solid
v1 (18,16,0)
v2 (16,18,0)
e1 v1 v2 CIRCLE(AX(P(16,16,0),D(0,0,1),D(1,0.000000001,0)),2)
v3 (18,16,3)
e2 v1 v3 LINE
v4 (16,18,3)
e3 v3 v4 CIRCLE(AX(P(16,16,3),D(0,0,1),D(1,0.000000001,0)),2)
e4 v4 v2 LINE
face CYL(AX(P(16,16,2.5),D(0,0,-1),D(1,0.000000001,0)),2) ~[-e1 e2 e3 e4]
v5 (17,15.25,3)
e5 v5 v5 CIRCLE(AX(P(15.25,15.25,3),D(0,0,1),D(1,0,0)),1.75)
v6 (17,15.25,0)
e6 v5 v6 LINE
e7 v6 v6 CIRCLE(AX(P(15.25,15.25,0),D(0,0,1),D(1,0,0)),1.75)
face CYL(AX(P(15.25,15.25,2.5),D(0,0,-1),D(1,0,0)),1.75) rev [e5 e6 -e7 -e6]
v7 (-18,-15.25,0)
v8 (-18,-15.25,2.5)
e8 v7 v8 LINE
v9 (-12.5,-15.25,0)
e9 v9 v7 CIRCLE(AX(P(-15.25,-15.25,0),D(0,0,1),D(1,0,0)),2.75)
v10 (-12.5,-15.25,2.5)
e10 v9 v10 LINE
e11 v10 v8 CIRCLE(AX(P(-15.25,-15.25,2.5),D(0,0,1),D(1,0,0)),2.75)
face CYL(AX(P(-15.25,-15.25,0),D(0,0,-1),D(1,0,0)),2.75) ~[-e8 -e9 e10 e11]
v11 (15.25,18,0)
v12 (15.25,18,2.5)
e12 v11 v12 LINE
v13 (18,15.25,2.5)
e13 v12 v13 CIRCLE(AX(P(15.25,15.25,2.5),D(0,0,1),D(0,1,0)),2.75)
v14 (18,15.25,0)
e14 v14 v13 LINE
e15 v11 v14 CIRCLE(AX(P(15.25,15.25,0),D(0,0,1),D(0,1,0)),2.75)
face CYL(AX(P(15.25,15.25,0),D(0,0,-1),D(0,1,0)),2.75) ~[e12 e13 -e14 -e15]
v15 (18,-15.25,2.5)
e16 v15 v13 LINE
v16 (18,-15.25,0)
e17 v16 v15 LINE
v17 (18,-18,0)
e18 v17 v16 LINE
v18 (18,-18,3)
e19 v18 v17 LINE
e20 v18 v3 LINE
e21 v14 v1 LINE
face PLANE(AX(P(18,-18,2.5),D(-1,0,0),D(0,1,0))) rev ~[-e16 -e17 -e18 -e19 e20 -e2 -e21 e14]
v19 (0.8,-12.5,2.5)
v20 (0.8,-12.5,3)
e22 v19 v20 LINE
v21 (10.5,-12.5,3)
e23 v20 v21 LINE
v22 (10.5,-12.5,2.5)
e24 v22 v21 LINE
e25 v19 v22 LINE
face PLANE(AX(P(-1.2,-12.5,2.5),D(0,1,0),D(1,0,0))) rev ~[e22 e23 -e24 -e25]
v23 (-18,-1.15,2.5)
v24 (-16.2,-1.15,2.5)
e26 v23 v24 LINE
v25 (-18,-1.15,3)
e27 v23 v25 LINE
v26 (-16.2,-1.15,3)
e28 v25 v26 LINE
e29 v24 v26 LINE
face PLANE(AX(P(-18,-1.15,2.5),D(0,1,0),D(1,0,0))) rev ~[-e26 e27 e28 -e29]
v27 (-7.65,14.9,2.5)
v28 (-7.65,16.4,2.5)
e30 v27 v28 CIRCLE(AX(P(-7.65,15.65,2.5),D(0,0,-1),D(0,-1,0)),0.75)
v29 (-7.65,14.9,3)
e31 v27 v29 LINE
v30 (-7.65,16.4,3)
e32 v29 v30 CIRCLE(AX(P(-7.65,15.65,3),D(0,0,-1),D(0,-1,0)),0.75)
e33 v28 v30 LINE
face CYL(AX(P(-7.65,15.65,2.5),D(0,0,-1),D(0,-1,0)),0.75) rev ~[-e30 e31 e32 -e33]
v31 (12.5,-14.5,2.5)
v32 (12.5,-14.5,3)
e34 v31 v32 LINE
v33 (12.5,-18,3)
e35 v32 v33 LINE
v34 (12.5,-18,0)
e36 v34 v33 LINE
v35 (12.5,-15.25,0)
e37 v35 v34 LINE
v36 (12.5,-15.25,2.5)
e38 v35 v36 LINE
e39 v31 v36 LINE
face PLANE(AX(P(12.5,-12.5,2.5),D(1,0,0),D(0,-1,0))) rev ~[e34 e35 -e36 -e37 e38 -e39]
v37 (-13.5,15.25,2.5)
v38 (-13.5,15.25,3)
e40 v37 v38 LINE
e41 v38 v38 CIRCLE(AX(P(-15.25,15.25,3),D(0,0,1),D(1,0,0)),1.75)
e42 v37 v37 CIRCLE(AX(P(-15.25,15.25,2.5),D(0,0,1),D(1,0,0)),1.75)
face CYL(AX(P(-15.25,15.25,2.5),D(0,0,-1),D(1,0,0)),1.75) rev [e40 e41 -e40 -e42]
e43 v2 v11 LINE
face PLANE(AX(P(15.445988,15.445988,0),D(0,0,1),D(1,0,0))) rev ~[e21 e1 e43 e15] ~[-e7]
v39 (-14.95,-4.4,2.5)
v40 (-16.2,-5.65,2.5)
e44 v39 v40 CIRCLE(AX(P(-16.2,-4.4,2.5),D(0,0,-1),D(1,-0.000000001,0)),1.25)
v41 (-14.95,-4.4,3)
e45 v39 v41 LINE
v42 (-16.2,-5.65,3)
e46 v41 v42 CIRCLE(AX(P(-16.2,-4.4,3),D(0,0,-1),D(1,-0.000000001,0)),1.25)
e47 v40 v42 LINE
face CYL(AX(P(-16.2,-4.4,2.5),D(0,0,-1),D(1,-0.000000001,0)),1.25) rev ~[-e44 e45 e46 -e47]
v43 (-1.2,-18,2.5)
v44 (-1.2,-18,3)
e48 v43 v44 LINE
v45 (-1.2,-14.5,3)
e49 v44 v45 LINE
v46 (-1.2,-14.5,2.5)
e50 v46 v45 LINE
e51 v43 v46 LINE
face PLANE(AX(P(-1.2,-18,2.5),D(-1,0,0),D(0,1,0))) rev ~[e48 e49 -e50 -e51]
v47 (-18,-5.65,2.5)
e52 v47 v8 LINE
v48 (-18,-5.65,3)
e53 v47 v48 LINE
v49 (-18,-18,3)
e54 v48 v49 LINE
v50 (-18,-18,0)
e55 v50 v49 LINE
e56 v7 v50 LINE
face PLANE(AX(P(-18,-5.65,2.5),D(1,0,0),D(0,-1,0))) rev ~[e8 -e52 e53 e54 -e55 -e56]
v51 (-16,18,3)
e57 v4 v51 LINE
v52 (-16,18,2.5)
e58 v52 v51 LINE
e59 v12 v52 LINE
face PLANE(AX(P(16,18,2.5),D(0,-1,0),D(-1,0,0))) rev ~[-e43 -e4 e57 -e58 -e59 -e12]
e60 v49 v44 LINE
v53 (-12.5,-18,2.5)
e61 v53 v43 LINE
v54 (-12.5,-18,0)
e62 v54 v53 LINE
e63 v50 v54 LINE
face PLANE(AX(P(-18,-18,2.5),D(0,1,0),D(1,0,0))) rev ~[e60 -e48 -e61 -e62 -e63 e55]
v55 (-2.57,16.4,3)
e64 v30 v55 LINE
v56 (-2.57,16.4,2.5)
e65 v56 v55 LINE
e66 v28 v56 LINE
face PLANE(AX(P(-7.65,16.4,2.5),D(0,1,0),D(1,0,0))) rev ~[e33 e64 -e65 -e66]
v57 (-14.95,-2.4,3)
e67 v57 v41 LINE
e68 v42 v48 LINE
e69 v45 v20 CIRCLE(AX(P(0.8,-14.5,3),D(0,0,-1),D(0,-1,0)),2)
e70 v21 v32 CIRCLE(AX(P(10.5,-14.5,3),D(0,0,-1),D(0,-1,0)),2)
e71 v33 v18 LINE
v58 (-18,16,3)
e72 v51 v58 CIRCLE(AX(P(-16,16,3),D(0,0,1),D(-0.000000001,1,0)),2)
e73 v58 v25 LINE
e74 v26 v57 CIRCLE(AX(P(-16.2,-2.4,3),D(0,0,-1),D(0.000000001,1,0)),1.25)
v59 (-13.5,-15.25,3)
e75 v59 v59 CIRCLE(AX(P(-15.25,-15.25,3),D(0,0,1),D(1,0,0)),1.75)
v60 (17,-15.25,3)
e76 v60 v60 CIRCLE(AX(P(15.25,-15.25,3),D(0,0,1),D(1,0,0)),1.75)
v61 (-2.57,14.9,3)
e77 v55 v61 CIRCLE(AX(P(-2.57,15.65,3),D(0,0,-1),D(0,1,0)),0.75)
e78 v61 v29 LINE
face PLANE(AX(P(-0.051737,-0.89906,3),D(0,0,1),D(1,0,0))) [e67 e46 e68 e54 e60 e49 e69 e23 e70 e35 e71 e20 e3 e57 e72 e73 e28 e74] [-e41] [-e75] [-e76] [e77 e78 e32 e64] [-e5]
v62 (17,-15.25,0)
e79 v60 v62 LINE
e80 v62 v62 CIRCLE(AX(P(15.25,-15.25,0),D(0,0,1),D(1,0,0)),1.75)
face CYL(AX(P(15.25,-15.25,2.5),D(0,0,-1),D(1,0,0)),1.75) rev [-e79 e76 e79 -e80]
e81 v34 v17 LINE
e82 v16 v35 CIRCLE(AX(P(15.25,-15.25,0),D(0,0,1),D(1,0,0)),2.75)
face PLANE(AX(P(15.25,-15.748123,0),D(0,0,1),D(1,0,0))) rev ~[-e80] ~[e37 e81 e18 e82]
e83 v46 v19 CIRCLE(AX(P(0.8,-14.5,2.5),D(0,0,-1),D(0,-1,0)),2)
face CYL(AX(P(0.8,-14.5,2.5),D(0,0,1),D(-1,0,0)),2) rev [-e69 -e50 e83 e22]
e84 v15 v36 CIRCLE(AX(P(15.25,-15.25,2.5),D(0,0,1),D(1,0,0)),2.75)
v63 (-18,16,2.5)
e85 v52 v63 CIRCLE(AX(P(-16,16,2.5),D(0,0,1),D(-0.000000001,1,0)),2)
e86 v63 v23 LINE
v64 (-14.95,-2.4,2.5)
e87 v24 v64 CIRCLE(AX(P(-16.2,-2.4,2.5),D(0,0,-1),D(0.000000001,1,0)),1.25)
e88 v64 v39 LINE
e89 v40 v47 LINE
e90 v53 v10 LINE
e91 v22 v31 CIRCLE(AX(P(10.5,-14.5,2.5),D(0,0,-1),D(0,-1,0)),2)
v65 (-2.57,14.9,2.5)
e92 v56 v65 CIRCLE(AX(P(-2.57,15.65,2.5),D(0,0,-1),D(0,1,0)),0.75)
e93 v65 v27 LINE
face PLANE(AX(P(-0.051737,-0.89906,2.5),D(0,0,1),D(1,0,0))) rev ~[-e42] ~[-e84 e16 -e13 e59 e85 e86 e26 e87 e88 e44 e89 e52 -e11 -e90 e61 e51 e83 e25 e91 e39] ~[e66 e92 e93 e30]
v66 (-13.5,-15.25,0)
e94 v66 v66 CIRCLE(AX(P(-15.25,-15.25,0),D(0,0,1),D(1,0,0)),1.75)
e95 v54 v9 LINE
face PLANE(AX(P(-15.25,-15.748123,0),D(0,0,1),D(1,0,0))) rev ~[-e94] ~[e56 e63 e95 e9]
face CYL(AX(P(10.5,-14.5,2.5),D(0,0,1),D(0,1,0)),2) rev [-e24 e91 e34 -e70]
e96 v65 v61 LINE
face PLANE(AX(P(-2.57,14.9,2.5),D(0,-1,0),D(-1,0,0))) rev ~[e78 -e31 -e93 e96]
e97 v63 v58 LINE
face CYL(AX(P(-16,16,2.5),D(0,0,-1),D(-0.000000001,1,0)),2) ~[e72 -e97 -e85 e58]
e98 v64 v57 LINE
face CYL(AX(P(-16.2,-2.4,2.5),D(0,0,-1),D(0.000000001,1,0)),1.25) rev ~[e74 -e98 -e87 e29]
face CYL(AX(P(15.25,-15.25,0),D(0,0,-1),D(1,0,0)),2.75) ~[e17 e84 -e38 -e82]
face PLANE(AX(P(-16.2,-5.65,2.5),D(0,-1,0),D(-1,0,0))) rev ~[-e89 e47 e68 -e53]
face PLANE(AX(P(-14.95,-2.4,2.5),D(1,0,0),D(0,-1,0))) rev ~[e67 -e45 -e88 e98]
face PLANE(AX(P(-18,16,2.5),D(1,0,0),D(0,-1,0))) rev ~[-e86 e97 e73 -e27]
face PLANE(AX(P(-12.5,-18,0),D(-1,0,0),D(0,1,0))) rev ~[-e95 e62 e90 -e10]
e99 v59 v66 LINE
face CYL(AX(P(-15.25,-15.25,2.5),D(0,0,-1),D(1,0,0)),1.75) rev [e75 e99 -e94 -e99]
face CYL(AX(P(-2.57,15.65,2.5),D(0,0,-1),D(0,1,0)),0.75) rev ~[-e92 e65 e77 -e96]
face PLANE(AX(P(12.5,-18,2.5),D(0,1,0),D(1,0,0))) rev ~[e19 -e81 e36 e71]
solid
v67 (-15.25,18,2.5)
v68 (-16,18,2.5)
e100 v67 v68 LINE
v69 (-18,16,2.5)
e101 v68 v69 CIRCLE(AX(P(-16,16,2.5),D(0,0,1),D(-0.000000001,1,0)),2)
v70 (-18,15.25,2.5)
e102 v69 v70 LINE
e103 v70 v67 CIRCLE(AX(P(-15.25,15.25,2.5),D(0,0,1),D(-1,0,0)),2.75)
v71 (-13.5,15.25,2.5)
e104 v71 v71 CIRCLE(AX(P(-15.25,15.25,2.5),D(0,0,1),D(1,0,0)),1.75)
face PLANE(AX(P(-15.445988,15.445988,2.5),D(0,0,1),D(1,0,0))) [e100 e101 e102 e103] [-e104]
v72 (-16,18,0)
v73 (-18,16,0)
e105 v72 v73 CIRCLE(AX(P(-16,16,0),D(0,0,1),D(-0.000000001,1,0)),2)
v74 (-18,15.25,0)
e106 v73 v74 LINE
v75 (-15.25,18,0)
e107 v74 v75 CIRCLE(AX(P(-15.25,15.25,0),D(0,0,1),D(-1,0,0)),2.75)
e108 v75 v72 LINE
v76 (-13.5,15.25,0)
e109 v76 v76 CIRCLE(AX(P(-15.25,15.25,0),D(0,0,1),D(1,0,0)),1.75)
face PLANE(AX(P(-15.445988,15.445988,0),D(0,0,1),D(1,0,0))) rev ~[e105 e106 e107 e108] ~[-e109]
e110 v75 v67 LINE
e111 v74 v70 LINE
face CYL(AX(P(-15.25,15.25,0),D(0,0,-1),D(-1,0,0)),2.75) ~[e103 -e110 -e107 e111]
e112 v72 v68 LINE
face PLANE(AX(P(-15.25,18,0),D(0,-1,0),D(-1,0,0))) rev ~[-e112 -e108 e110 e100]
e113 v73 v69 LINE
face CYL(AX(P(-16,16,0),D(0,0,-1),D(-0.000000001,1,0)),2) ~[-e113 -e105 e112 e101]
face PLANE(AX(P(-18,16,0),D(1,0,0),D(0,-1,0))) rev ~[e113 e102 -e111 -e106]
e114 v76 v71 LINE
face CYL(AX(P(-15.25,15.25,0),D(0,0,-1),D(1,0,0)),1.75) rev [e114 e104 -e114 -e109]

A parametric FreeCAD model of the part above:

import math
import FreeCAD as App
import Part
import Sketcher
from FreeCAD import Vector


def edges_at(feature, points):
    """Names of the edges that pass closest to the given points."""
    edges = feature.Shape.Edges
    near = lambda p: min(range(len(edges)), key=lambda i: edges[i].distToShape(Part.Vertex(*p))[0])
    return sorted({f"Edge{near(p) + 1}" for p in points})

doc = App.newDocument("Part")
params = doc.addObject("Spreadsheet::Sheet", "Params")
for row, (alias, value) in enumerate([
    ("sketch1_diameter", "3.5 mm"),
    ("sketch1_radius", "2.75 mm"),
    ("sketch1_height", "2.75 mm"),
    ("pad1_length", "2.5 mm"),
    ("sketch2_diameter", "3.5 mm"),
    ("sketch2_radius", "2.75 mm"),
    ("sketch2_height", "2.75 mm"),
    ("pad2_length", "2.5 mm"),
    ("sketch3_radius", "2 mm"),
    ("sketch3_diameter", "3.5 mm"),
    ("sketch3_radius2", "2.75 mm"),
    ("pad3_length", "2.5 mm"),
    ("sketch4_radius", "2 mm"),
    ("sketch4_diameter", "3.5 mm"),
    ("sketch4_radius2", "2.75 mm"),
    ("pad4_length", "2.5 mm"),
    ("sketch5_radius", "2 mm"),
    ("sketch5_diameter", "3.5 mm"),
    ("sketch5_width", "32 mm"),
    ("sketch5_height", "34 mm"),
    ("sketch5_height2", "2 mm"),
    ("pad5_length", "0.5 mm"),
    ("fillet_radius", "2 mm"),
], start=1):
    params.set(f"A{row}", alias)
    params.set(f"B{row}", "=" + value)
    params.setAlias(f"B{row}", alias)

body = doc.addObject("PartDesign::Body", "Body")

sketch1 = doc.addObject("Sketcher::SketchObject", "Sketch")
body.addObject(sketch1)
sketch1.AttachmentSupport = (doc.XY_Plane, [""])
sketch1.MapMode = "FlatFace"
sketch1.addGeometry([
    Part.LineSegment(Vector(18, -18, 0), Vector(18, -15.2, 0)),
    Part.ArcOfCircle(Part.Circle(Vector(15.2, -15.2, 0), Vector(0, 0, 1), 2.8), math.radians(0), math.radians(180)),
    Part.LineSegment(Vector(12.5, -15.2, 0), Vector(12.5, -18, 0)),
    Part.LineSegment(Vector(12.5, -18, 0), Vector(18, -18, 0)),
    Part.Circle(Vector(15.2, -15.2, 0), Vector(0, 0, 1), 1.8),
], False)
sketch1.addConstraint([
    Sketcher.Constraint("Tangent", 0, 2, 1, 1),
    Sketcher.Constraint("Tangent", 1, 2, 2, 1),
    Sketcher.Constraint("Coincident", 2, 2, 3, 1),
    Sketcher.Constraint("Coincident", 3, 2, 0, 1),
    Sketcher.Constraint("Vertical", 0),
    Sketcher.Constraint("Vertical", 2),
    Sketcher.Constraint("Horizontal", 3),
    Sketcher.Constraint("Coincident", 4, 3, 1, 3),
    Sketcher.Constraint("Diameter", 4, 3.5),
    Sketcher.Constraint("Radius", 1, 2.75),
    Sketcher.Constraint("DistanceX", -1, 1, 0, 2, 18.0),
    Sketcher.Constraint("DistanceY", 2, 2, -1, 1, 18.0),
    Sketcher.Constraint("DistanceY", 0, 1, 0, 2, 2.75),
])
sketch1.setExpression("Constraints[8]", "Params.sketch1_diameter")
sketch1.setExpression("Constraints[9]", "Params.sketch1_radius")
sketch1.setExpression("Constraints[12]", "Params.sketch1_height")
pad1 = doc.addObject("PartDesign::Pad", "Pad")
body.addObject(pad1)
pad1.Profile = sketch1
pad1.setExpression("Length", "Params.pad1_length")
body2 = doc.addObject("PartDesign::Body", "Body001")

sketch2 = doc.addObject("Sketcher::SketchObject", "Sketch001")
body2.addObject(sketch2)
sketch2.AttachmentSupport = (doc.getObject("XY_Plane001"), [""])
sketch2.MapMode = "FlatFace"
sketch2.addGeometry([
    Part.LineSegment(Vector(-12.5, -18, 0), Vector(-12.5, -15.2, 0)),
    Part.ArcOfCircle(Part.Circle(Vector(-15.2, -15.2, 0), Vector(0, 0, 1), 2.8), math.radians(0), math.radians(180)),
    Part.LineSegment(Vector(-18, -15.3, 0), Vector(-18, -18, 0)),
    Part.LineSegment(Vector(-18, -18, 0), Vector(-12.5, -18, 0)),
    Part.Circle(Vector(-15.2, -15.2, 0), Vector(0, 0, 1), 1.8),
], False)
sketch2.addConstraint([
    Sketcher.Constraint("Tangent", 0, 2, 1, 1),
    Sketcher.Constraint("Tangent", 1, 2, 2, 1),
    Sketcher.Constraint("Coincident", 2, 2, 3, 1),
    Sketcher.Constraint("Coincident", 3, 2, 0, 1),
    Sketcher.Constraint("Vertical", 0),
    Sketcher.Constraint("Vertical", 2),
    Sketcher.Constraint("Horizontal", 3),
    Sketcher.Constraint("Coincident", 4, 3, 1, 3),
    Sketcher.Constraint("Diameter", 4, 3.5),
    Sketcher.Constraint("Radius", 1, 2.75),
    Sketcher.Constraint("DistanceX", 1, 2, -1, 1, 18.0),
    Sketcher.Constraint("DistanceY", 2, 2, -1, 1, 18.0),
    Sketcher.Constraint("DistanceY", 0, 1, 0, 2, 2.75),
])
sketch2.setExpression("Constraints[8]", "Params.sketch2_diameter")
sketch2.setExpression("Constraints[9]", "Params.sketch2_radius")
sketch2.setExpression("Constraints[12]", "Params.sketch2_height")
pad2 = doc.addObject("PartDesign::Pad", "Pad001")
body2.addObject(pad2)
pad2.Profile = sketch2
pad2.setExpression("Length", "Params.pad2_length")
body3 = doc.addObject("PartDesign::Body", "Body002")

sketch3 = doc.addObject("Sketcher::SketchObject", "Sketch002")
body3.addObject(sketch3)
sketch3.AttachmentSupport = (doc.getObject("XY_Plane002"), [""])
sketch3.MapMode = "FlatFace"
sketch3.addGeometry([
    Part.LineSegment(Vector(16, 18, 0), Vector(15.2, 18, 0)),
    Part.ArcOfCircle(Part.Circle(Vector(15.2, 15.2, 0), Vector(0, 0, 1), 2.8), math.radians(90), math.radians(360)),
    Part.LineSegment(Vector(18, 15.2, 0), Vector(18, 16, 0)),
    Part.ArcOfCircle(Part.Circle(Vector(16, 16, 0), Vector(0, 0, 1), 2), math.radians(0), math.radians(90)),
    Part.Circle(Vector(15.2, 15.2, 0), Vector(0, 0, 1), 1.8),
], False)
sketch3.addConstraint([
    Sketcher.Constraint("Tangent", 0, 2, 1, 1),
    Sketcher.Constraint("Tangent", 1, 2, 2, 1),
    Sketcher.Constraint("Tangent", 2, 2, 3, 1),
    Sketcher.Constraint("Tangent", 3, 2, 0, 1),
    Sketcher.Constraint("Horizontal", 0),
    Sketcher.Constraint("Vertical", 2),
    Sketcher.Constraint("Coincident", 4, 3, 1, 3),
    Sketcher.Constraint("Radius", 3, 2.0),
    Sketcher.Constraint("Diameter", 4, 3.5),
    Sketcher.Constraint("Radius", 1, 2.75),
    Sketcher.Constraint("DistanceX", -1, 1, 3, 3, 16.0),
    Sketcher.Constraint("DistanceY", -1, 1, 3, 3, 16.0),
])
sketch3.setExpression("Constraints[7]", "Params.sketch3_radius")
sketch3.setExpression("Constraints[8]", "Params.sketch3_diameter")
sketch3.setExpression("Constraints[9]", "Params.sketch3_radius2")
pad3 = doc.addObject("PartDesign::Pad", "Pad002")
body3.addObject(pad3)
pad3.Profile = sketch3
pad3.setExpression("Length", "Params.pad3_length")
body4 = doc.addObject("PartDesign::Body", "Body003")

sketch4 = doc.addObject("Sketcher::SketchObject", "Sketch003")
body4.addObject(sketch4)
sketch4.AttachmentSupport = (doc.getObject("XY_Plane003"), [""])
sketch4.MapMode = "FlatFace"
sketch4.addGeometry([
    Part.LineSegment(Vector(-18, 16, 0), Vector(-18, 15.2, 0)),
    Part.ArcOfCircle(Part.Circle(Vector(-15.2, 15.2, 0), Vector(0, 0, 1), 2.8), math.radians(180), math.radians(450)),
    Part.LineSegment(Vector(-15.2, 18, 0), Vector(-16, 18, 0)),
    Part.ArcOfCircle(Part.Circle(Vector(-16, 16, 0), Vector(0, 0, 1), 2), math.radians(90), math.radians(180)),
    Part.Circle(Vector(-15.2, 15.2, 0), Vector(0, 0, 1), 1.8),
], False)
sketch4.addConstraint([
    Sketcher.Constraint("Tangent", 0, 2, 1, 1),
    Sketcher.Constraint("Tangent", 1, 2, 2, 1),
    Sketcher.Constraint("Tangent", 2, 2, 3, 1),
    Sketcher.Constraint("Tangent", 3, 2, 0, 1),
    Sketcher.Constraint("Vertical", 0),
    Sketcher.Constraint("Horizontal", 2),
    Sketcher.Constraint("Coincident", 4, 3, 1, 3),
    Sketcher.Constraint("Radius", 3, 2.0),
    Sketcher.Constraint("Diameter", 4, 3.5),
    Sketcher.Constraint("Radius", 1, 2.75),
    Sketcher.Constraint("DistanceX", 3, 3, -1, 1, 16.0),
    Sketcher.Constraint("DistanceY", -1, 1, 3, 3, 16.0),
])
sketch4.setExpression("Constraints[7]", "Params.sketch4_radius")
sketch4.setExpression("Constraints[8]", "Params.sketch4_diameter")
sketch4.setExpression("Constraints[9]", "Params.sketch4_radius2")
pad4 = doc.addObject("PartDesign::Pad", "Pad003")
body4.addObject(pad4)
pad4.Profile = sketch4
pad4.setExpression("Length", "Params.pad4_length")
body.AllowCompound = True
doc.recompute()

boolean = doc.addObject("PartDesign::Boolean", "Boolean")
body.addObject(boolean)
boolean.Type = "Fuse"
boolean.addObjects([body3])
doc.recompute()

boolean2 = doc.addObject("PartDesign::Boolean", "Boolean001")
body.addObject(boolean2)
boolean2.Type = "Fuse"
boolean2.addObjects([body2])

sketch5 = doc.addObject("Sketcher::SketchObject", "Sketch004")
body.addObject(sketch5)
sketch5.AttachmentSupport = (doc.XY_Plane, [""])
sketch5.MapMode = "FlatFace"
sketch5.AttachmentOffset = App.Placement(Vector(0, 0, 2.5), App.Rotation())
sketch5.addGeometry([
    Part.LineSegment(Vector(-18, -5.7, 0), Vector(-18, -18, 0)),
    Part.LineSegment(Vector(-18, -18, 0), Vector(-1.2, -18, 0)),
    Part.LineSegment(Vector(-1.2, -18, 0), Vector(-1.2, -12.5, 0)),
    Part.LineSegment(Vector(-1.2, -12.5, 0), Vector(12.5, -12.5, 0)),
    Part.LineSegment(Vector(12.5, -12.5, 0), Vector(12.5, -18, 0)),
    Part.LineSegment(Vector(12.5, -18, 0), Vector(18, -18, 0)),
    Part.LineSegment(Vector(18, -18, 0), Vector(18, 16, 0)),
    Part.ArcOfCircle(Part.Circle(Vector(16, 16, 0), Vector(0, 0, 1), 2), math.radians(0), math.radians(90)),
    Part.LineSegment(Vector(16, 18, 0), Vector(-16, 18, 0)),
    Part.ArcOfCircle(Part.Circle(Vector(-16, 16, 0), Vector(0, 0, 1), 2), math.radians(90), math.radians(180)),
    Part.LineSegment(Vector(-18, 16, 0), Vector(-18, -1.1, 0)),
    Part.LineSegment(Vector(-18, -1.1, 0), Vector(-16.2, -1.1, 0)),
    Part.ArcOfCircle(Part.Circle(Vector(-16.2, -2.4, 0), Vector(0, 0, 1), 1.3), math.radians(0), math.radians(90)),
    Part.LineSegment(Vector(-14.9, -2.4, 0), Vector(-14.9, -4.4, 0)),
    Part.ArcOfCircle(Part.Circle(Vector(-16.2, -4.4, 0), Vector(0, 0, 1), 1.3), math.radians(-90), math.radians(0)),
    Part.LineSegment(Vector(-16.2, -5.7, 0), Vector(-18, -5.7, 0)),
    Part.Circle(Vector(-15.2, -15.2, 0), Vector(0, 0, 1), 1.8),
    Part.Circle(Vector(15.2, -15.2, 0), Vector(0, 0, 1), 1.8),
    Part.Circle(Vector(-15.2, 15.2, 0), Vector(0, 0, 1), 1.8),
    Part.LineSegment(Vector(-2.6, 14.9, 0), Vector(-7.7, 14.9, 0)),
    Part.ArcOfCircle(Part.Circle(Vector(-7.7, 15.7, 0), Vector(0, 0, 1), 0.8), math.radians(90), math.radians(270)),
    Part.LineSegment(Vector(-7.7, 16.4, 0), Vector(-2.6, 16.4, 0)),
    Part.ArcOfCircle(Part.Circle(Vector(-2.6, 15.7, 0), Vector(0, 0, 1), 0.8), math.radians(-90), math.radians(90)),
    Part.Circle(Vector(15.2, 15.2, 0), Vector(0, 0, 1), 1.8),
], False)
sketch5.addConstraint([
    Sketcher.Constraint("Coincident", 0, 2, 1, 1),
    Sketcher.Constraint("Coincident", 1, 2, 2, 1),
    Sketcher.Constraint("Coincident", 2, 2, 3, 1),
    Sketcher.Constraint("Coincident", 3, 2, 4, 1),
    Sketcher.Constraint("Coincident", 4, 2, 5, 1),
    Sketcher.Constraint("Coincident", 5, 2, 6, 1),
    Sketcher.Constraint("Tangent", 6, 2, 7, 1),
    Sketcher.Constraint("Tangent", 7, 2, 8, 1),
    Sketcher.Constraint("Tangent", 8, 2, 9, 1),
    Sketcher.Constraint("Tangent", 9, 2, 10, 1),
    Sketcher.Constraint("Coincident", 10, 2, 11, 1),
    Sketcher.Constraint("Tangent", 11, 2, 12, 2),
    Sketcher.Constraint("Tangent", 12, 1, 13, 1),
    Sketcher.Constraint("Tangent", 13, 2, 14, 2),
    Sketcher.Constraint("Tangent", 14, 1, 15, 1),
    Sketcher.Constraint("Coincident", 15, 2, 0, 1),
    Sketcher.Constraint("Tangent", 19, 2, 20, 2),
    Sketcher.Constraint("Tangent", 20, 1, 21, 1),
    Sketcher.Constraint("Tangent", 21, 2, 22, 2),
    Sketcher.Constraint("Tangent", 22, 1, 19, 1),
    Sketcher.Constraint("Vertical", 0),
    Sketcher.Constraint("Horizontal", 1),
    Sketcher.Constraint("Vertical", 2),
    Sketcher.Constraint("Horizontal", 3),
    Sketcher.Constraint("Vertical", 4),
    Sketcher.Constraint("Horizontal", 5),
    Sketcher.Constraint("Vertical", 6),
    Sketcher.Constraint("Horizontal", 8),
    Sketcher.Constraint("Vertical", 10),
    Sketcher.Constraint("Horizontal", 11),
    Sketcher.Constraint("Vertical", 13),
    Sketcher.Constraint("Horizontal", 15),
    Sketcher.Constraint("Horizontal", 19),
    Sketcher.Constraint("Horizontal", 21),
    Sketcher.Constraint("Equal", 7, 9),
    Sketcher.Constraint("Equal", 12, 14),
    Sketcher.Constraint("Equal", 16, 17),
    Sketcher.Constraint("Equal", 17, 18),
    Sketcher.Constraint("Equal", 18, 23),
    Sketcher.Constraint("Symmetric", 17, 3, 18, 3, -1, 1),
    Sketcher.Constraint("Symmetric", 16, 3, 23, 3, -1, 1),
    Sketcher.Constraint("Symmetric", 16, 3, 17, 3, -2),
    Sketcher.Constraint("Symmetric", 0, 2, 5, 2, -2),
    Sketcher.Constraint("Vertical", 0, 2, 9, 2),
    Sketcher.Constraint("Equal", 5, 2),
    Sketcher.Constraint("Radius", 7, 2.0),
    Sketcher.Constraint("Diameter", 16, 3.5),
    Sketcher.Constraint("DistanceX", 8, 2, 8, 1, 32.0),
    Sketcher.Constraint("DistanceY", 6, 1, 6, 2, 34.0),
    Sketcher.Constraint("DistanceY", 13, 2, 13, 1, 2.0),
    Sketcher.Constraint("Radius", 12, 1.25),
    Sketcher.Constraint("Radius", 20, 0.75),
    Sketcher.Constraint("DistanceX", 1, 1, 1, 2, 16.8),
    Sketcher.Constraint("DistanceX", 3, 1, 3, 2, 13.7),
    Sketcher.Constraint("DistanceX", 11, 1, 11, 2, 1.8),
    Sketcher.Constraint("DistanceY", -1, 1, 7, 3, 16.0),
    Sketcher.Constraint("DistanceX", 19, 2, 19, 1, 5.08),
    Sketcher.Constraint("DistanceY", 0, 2, 0, 1, 12.35),
    Sketcher.Constraint("DistanceY", -1, 1, 19, 2, 14.9),
    Sketcher.Constraint("DistanceX", 16, 3, 17, 3, 30.5),
    Sketcher.Constraint("DistanceY", 16, 3, 18, 3, 30.5),
    Sketcher.Constraint("DistanceX", 18, 3, 20, 3, 7.6),
])
sketch5.setExpression("Constraints[45]", "Params.sketch5_radius")
sketch5.setExpression("Constraints[46]", "Params.sketch5_diameter")
sketch5.setExpression("Constraints[47]", "Params.sketch5_width")
sketch5.setExpression("Constraints[48]", "Params.sketch5_height")
sketch5.setExpression("Constraints[49]", "Params.sketch5_height2")
pad5 = doc.addObject("PartDesign::Pad", "Pad004")
body.addObject(pad5)
pad5.Profile = sketch5
pad5.setExpression("Length", "Params.pad5_length")
doc.recompute()

fillet = doc.addObject("PartDesign::Fillet", "Fillet")
body.addObject(fillet)
fillet.Base = (pad5, edges_at(pad5, [(-1.2, -12.5, 2.75), (12.5, -12.5, 2.75)]))
fillet.setExpression("Radius", "Params.fillet_radius")

doc.recompute()
